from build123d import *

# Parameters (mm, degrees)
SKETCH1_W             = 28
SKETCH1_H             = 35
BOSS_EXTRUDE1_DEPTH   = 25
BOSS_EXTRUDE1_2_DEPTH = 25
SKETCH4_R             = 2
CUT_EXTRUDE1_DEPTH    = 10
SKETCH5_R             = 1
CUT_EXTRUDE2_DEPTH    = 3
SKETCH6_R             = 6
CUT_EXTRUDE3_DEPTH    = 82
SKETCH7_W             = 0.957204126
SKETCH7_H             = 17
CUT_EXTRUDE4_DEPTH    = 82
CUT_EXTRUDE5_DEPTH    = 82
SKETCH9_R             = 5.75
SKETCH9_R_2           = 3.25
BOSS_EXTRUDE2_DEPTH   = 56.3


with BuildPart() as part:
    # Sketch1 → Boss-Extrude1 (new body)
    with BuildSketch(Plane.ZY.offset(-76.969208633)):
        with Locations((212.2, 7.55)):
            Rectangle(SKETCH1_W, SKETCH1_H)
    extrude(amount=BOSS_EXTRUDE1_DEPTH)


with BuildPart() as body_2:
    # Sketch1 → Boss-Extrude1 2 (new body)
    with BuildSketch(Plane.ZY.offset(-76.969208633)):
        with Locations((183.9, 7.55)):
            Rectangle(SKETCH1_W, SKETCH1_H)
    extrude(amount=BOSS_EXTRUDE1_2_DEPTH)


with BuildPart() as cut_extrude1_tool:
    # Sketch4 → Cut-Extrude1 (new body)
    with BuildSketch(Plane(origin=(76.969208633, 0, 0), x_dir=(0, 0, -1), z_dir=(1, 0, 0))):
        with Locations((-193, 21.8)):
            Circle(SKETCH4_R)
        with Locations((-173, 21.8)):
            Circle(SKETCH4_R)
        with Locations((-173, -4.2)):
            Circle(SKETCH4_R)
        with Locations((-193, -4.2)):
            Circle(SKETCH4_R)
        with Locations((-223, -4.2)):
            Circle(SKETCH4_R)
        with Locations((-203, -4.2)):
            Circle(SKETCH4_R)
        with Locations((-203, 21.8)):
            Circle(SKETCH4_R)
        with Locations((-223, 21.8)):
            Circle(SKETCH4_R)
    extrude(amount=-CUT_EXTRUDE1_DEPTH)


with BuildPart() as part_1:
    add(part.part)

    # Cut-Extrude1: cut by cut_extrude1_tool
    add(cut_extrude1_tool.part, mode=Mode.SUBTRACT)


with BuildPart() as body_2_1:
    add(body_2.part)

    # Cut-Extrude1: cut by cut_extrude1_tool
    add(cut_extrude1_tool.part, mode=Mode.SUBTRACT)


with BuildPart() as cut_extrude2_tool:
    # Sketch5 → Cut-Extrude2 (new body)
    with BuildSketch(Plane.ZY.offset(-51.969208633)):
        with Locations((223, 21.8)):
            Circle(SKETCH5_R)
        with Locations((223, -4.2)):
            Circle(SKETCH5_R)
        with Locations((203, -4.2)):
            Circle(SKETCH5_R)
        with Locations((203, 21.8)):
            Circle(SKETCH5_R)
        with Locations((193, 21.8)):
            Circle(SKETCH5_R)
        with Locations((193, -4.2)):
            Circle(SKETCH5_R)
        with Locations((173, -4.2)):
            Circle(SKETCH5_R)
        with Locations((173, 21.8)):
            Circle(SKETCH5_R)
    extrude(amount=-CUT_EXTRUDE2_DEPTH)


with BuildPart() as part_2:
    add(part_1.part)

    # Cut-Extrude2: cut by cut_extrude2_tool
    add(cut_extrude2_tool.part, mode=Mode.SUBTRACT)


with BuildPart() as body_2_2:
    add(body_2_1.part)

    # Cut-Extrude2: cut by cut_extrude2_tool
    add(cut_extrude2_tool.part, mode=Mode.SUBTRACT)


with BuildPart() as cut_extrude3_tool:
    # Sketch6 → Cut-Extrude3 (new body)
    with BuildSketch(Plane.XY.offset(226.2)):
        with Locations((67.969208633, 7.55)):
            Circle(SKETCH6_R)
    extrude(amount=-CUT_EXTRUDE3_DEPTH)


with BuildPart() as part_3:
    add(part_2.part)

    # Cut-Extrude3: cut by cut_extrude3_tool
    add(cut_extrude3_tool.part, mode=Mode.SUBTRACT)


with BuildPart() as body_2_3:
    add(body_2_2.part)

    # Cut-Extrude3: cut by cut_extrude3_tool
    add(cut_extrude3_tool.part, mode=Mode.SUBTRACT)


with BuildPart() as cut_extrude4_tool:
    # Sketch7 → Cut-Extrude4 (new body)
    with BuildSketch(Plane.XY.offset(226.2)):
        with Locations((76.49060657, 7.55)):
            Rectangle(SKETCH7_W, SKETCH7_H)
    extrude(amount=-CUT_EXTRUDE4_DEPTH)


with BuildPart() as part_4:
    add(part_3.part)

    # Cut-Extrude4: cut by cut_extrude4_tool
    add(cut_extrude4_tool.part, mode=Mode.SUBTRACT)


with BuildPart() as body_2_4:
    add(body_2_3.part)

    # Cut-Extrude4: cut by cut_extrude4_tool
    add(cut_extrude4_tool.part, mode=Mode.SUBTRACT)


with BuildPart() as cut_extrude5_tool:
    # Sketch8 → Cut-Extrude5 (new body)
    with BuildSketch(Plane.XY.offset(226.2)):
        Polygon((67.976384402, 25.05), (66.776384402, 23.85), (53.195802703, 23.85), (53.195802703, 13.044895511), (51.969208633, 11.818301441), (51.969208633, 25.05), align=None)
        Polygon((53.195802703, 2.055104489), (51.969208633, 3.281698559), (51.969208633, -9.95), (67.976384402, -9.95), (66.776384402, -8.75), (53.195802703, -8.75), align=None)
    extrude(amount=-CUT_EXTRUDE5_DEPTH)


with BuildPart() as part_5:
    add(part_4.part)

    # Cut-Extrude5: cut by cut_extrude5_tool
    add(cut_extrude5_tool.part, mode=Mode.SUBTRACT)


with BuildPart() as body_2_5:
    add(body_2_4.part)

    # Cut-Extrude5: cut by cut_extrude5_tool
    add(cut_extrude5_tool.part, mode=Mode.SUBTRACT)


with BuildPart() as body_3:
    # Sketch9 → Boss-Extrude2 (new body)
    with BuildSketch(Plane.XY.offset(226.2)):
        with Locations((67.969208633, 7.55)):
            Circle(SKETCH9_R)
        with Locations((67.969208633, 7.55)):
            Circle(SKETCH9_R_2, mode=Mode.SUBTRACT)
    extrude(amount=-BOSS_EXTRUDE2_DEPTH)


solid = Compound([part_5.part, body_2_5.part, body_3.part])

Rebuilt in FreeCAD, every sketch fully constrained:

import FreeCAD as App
import Part
import Sketcher

V = App.Vector
Q = App.Units.Quantity

doc = App.newDocument("Part")
body = doc.addObject("PartDesign::Body", "Body")

# Sketch on YZ plane
sketch1 = body.newObject("Sketcher::SketchObject", "Sketch")
sketch1.AttachmentSupport = (doc.getObject("YZ_Plane"), [""])
sketch1.MapMode = "FlatFace"
sketch1.AttachmentOffset = App.Placement(V(0, 0, 76.969209), App.Rotation())
sketch1.addGeometry([
    Part.LineSegment(V(25, 198, 0), V(-10, 198, 0)),
    Part.LineSegment(V(-10, 198, 0), V(-10, 226, 0)),
    Part.LineSegment(V(-10, 226, 0), V(25, 226, 0)),
    Part.LineSegment(V(25, 226, 0), V(25, 198, 0)),
], False)
sketch1.addConstraint([
    Sketcher.Constraint("Coincident", 0, 2, 1, 1),
    Sketcher.Constraint("Coincident", 1, 2, 2, 1),
    Sketcher.Constraint("Coincident", 2, 2, 3, 1),
    Sketcher.Constraint("Coincident", 3, 2, 0, 1),
    Sketcher.Constraint("Horizontal", 0),
    Sketcher.Constraint("Vertical", 1),
    Sketcher.Constraint("Horizontal", 2),
    Sketcher.Constraint("Vertical", 3),
    Sketcher.Constraint("DistanceX", 0, 2, 0, 1, Q("35 mm")),
    Sketcher.Constraint("DistanceY", 1, 1, 1, 2, Q("28 mm")),
    Sketcher.Constraint("DistanceY", -1, 1, 0, 2, Q("198.2 mm")),
    Sketcher.Constraint("DistanceX", 0, 2, -1, 1, Q("9.95 mm")),
])
pad1 = body.newObject("PartDesign::Pad", "Pad")
pad1.Profile = sketch1
pad1.Length = 25
pad1.Reversed = True
body2 = doc.addObject("PartDesign::Body", "Body001")

# Sketch on YZ plane
sketch2 = body2.newObject("Sketcher::SketchObject", "Sketch001")
sketch2.AttachmentSupport = (doc.getObject("YZ_Plane001"), [""])
sketch2.MapMode = "FlatFace"
sketch2.AttachmentOffset = App.Placement(V(0, 0, 76.969209), App.Rotation())
sketch2.addGeometry([
    Part.LineSegment(V(25, 170, 0), V(-10, 170, 0)),
    Part.LineSegment(V(-10, 170, 0), V(-10, 198, 0)),
    Part.LineSegment(V(-10, 198, 0), V(25, 198, 0)),
    Part.LineSegment(V(25, 198, 0), V(25, 170, 0)),
], False)
sketch2.addConstraint([
    Sketcher.Constraint("Coincident", 0, 2, 1, 1),
    Sketcher.Constraint("Coincident", 1, 2, 2, 1),
    Sketcher.Constraint("Coincident", 2, 2, 3, 1),
    Sketcher.Constraint("Coincident", 3, 2, 0, 1),
    Sketcher.Constraint("Horizontal", 0),
    Sketcher.Constraint("Vertical", 1),
    Sketcher.Constraint("Horizontal", 2),
    Sketcher.Constraint("Vertical", 3),
    Sketcher.Constraint("DistanceX", 0, 2, 0, 1, Q("35 mm")),
    Sketcher.Constraint("DistanceY", 1, 1, 1, 2, Q("28 mm")),
    Sketcher.Constraint("DistanceY", -1, 1, 0, 2, Q("169.9 mm")),
    Sketcher.Constraint("DistanceX", 0, 2, -1, 1, Q("9.95 mm")),
])
pad2 = body2.newObject("PartDesign::Pad", "Pad001")
pad2.Profile = sketch2
pad2.Length = 25
pad2.Reversed = True
body3 = doc.addObject("PartDesign::Body", "Body002")
body3.AllowCompound = True

# Sketch on YZ plane
sketch3 = body3.newObject("Sketcher::SketchObject", "Sketch002")
sketch3.AttachmentSupport = (doc.getObject("YZ_Plane002"), [""])
sketch3.MapMode = "FlatFace"
sketch3.AttachmentOffset = App.Placement(V(0, 0, 76.969209), App.Rotation())
sketch3.addGeometry([
    Part.Circle(V(21.8, 193, 0), V(0, 0, 1), 2),  # 0
    Part.Circle(V(21.8, 173, 0), V(0, 0, 1), 2),  # 1
    Part.Circle(V(-4.2, 173, 0), V(0, 0, 1), 2),  # 2
    Part.Circle(V(-4.2, 193, 0), V(0, 0, 1), 2),  # 3
    Part.Circle(V(-4.2, 223, 0), V(0, 0, 1), 2),  # 4
    Part.Circle(V(-4.2, 203, 0), V(0, 0, 1), 2),  # 5
    Part.Circle(V(21.8, 203, 0), V(0, 0, 1), 2),  # 6
    Part.Circle(V(21.8, 223, 0), V(0, 0, 1), 2),  # 7
], False)
sketch3.addConstraint([
    Sketcher.Constraint("Equal", 0, 1),
    Sketcher.Constraint("Equal", 1, 2),
    Sketcher.Constraint("Equal", 2, 3),
    Sketcher.Constraint("Equal", 3, 4),
    Sketcher.Constraint("Equal", 4, 5),
    Sketcher.Constraint("Equal", 5, 6),
    Sketcher.Constraint("Equal", 6, 7),
    Sketcher.Constraint("Horizontal", 1, 3, 2, 3),
    Sketcher.Constraint("Horizontal", 0, 3, 3, 3),
    Sketcher.Constraint("Horizontal", 5, 3, 6, 3),
    Sketcher.Constraint("Horizontal", 4, 3, 7, 3),
    Sketcher.Constraint("Vertical", 0, 3, 1, 3),
    Sketcher.Constraint("Vertical", 2, 3, 3, 3),
    Sketcher.Constraint("Vertical", 3, 3, 4, 3),
    Sketcher.Constraint("Vertical", 4, 3, 5, 3),
    Sketcher.Constraint("Vertical", 1, 3, 6, 3),
    Sketcher.Constraint("Vertical", 6, 3, 7, 3),
    Sketcher.Constraint("Diameter", 0, Q("4 mm")),
    Sketcher.Constraint("DistanceY", -1, 1, 0, 3, Q("193 mm")),
    Sketcher.Constraint("DistanceY", -1, 1, 1, 3, Q("173 mm")),
    Sketcher.Constraint("DistanceY", -1, 1, 4, 3, Q("223 mm")),
    Sketcher.Constraint("DistanceY", -1, 1, 5, 3, Q("203 mm")),
    Sketcher.Constraint("DistanceX", 2, 3, 1, 3, Q("26 mm")),
    Sketcher.Constraint("DistanceX", -1, 1, 0, 3, Q("21.8 mm")),
])
pad3 = body3.newObject("PartDesign::Pad", "Pad002")
pad3.Profile = sketch3
pad3.Length = 10
pad3.Reversed = True
doc.recompute()

body4 = doc.addObject("PartDesign::Body", "Body003")
body4.BaseFeature = body3
boolean = body.newObject("PartDesign::Boolean", "Boolean")
boolean.Type = "Cut"
boolean.addObjects([body4])
doc.recompute()

boolean2 = body2.newObject("PartDesign::Boolean", "Boolean001")
boolean2.Type = "Cut"
boolean2.addObjects([body3])
body5 = doc.addObject("PartDesign::Body", "Body004")
body5.AllowCompound = True

# Sketch on YZ plane
sketch4 = body5.newObject("Sketcher::SketchObject", "Sketch003")
sketch4.AttachmentSupport = (doc.getObject("YZ_Plane004"), [""])
sketch4.MapMode = "FlatFace"
sketch4.AttachmentOffset = App.Placement(V(0, 0, 51.969209), App.Rotation())
sketch4.addGeometry([
    Part.Circle(V(21.8, 223, 0), V(0, 0, 1), 1),  # 0
    Part.Circle(V(-4.2, 223, 0), V(0, 0, 1), 1),  # 1
    Part.Circle(V(-4.2, 203, 0), V(0, 0, 1), 1),  # 2
    Part.Circle(V(21.8, 203, 0), V(0, 0, 1), 1),  # 3
    Part.Circle(V(21.8, 193, 0), V(0, 0, 1), 1),  # 4
    Part.Circle(V(-4.2, 193, 0), V(0, 0, 1), 1),  # 5
    Part.Circle(V(-4.2, 173, 0), V(0, 0, 1), 1),  # 6
    Part.Circle(V(21.8, 173, 0), V(0, 0, 1), 1),  # 7
], False)
sketch4.addConstraint([
    Sketcher.Constraint("Equal", 0, 1),
    Sketcher.Constraint("Equal", 1, 2),
    Sketcher.Constraint("Equal", 2, 3),
    Sketcher.Constraint("Equal", 3, 4),
    Sketcher.Constraint("Equal", 4, 5),
    Sketcher.Constraint("Equal", 5, 6),
    Sketcher.Constraint("Equal", 6, 7),
    Sketcher.Constraint("Horizontal", 0, 3, 1, 3),
    Sketcher.Constraint("Horizontal", 2, 3, 3, 3),
    Sketcher.Constraint("Horizontal", 4, 3, 5, 3),
    Sketcher.Constraint("Horizontal", 6, 3, 7, 3),
    Sketcher.Constraint("Vertical", 1, 3, 2, 3),
    Sketcher.Constraint("Vertical", 0, 3, 3, 3),
    Sketcher.Constraint("Vertical", 3, 3, 4, 3),
    Sketcher.Constraint("Vertical", 2, 3, 5, 3),
    Sketcher.Constraint("Vertical", 5, 3, 6, 3),
    Sketcher.Constraint("Vertical", 4, 3, 7, 3),
    Sketcher.Constraint("Diameter", 0, Q("2 mm")),
    Sketcher.Constraint("DistanceY", -1, 1, 0, 3, Q("223 mm")),
    Sketcher.Constraint("DistanceY", -1, 1, 2, 3, Q("203 mm")),
    Sketcher.Constraint("DistanceY", -1, 1, 4, 3, Q("193 mm")),
    Sketcher.Constraint("DistanceY", -1, 1, 6, 3, Q("173 mm")),
    Sketcher.Constraint("DistanceX", 1, 3, 0, 3, Q("26 mm")),
    Sketcher.Constraint("DistanceX", -1, 1, 0, 3, Q("21.8 mm")),
])
pad4 = body5.newObject("PartDesign::Pad", "Pad003")
pad4.Profile = sketch4
pad4.Length = 3
doc.recompute()

body6 = doc.addObject("PartDesign::Body", "Body005")
body6.BaseFeature = body5
boolean3 = body.newObject("PartDesign::Boolean", "Boolean002")
boolean3.Type = "Cut"
boolean3.addObjects([body6])
doc.recompute()

boolean4 = body2.newObject("PartDesign::Boolean", "Boolean003")
boolean4.Type = "Cut"
boolean4.addObjects([body5])
body7 = doc.addObject("PartDesign::Body", "Body006")

# Sketch on XY plane
sketch5 = body7.newObject("Sketcher::SketchObject", "Sketch004")
sketch5.AttachmentSupport = (doc.getObject("XY_Plane006"), [""])
sketch5.MapMode = "FlatFace"
sketch5.AttachmentOffset = App.Placement(V(0, 0, 226.2), App.Rotation())
sketch5.addGeometry(Part.Circle(V(68, 8, 0), V(0, 0, 1), 6), False)
sketch5.addConstraint([
    Sketcher.Constraint("Diameter", 0, Q("12 mm")),
    Sketcher.Constraint("DistanceY", -1, 1, 0, 3, Q("7.55 mm")),
    Sketcher.Constraint("DistanceX", -1, 1, 0, 3, Q("67.969209 mm")),
])
pad5 = body7.newObject("PartDesign::Pad", "Pad004")
pad5.Profile = sketch5
pad5.Length = 82
pad5.Reversed = True
doc.recompute()

body8 = doc.addObject("PartDesign::Body", "Body007")
body8.BaseFeature = body7
boolean5 = body.newObject("PartDesign::Boolean", "Boolean004")
boolean5.Type = "Cut"
boolean5.addObjects([body8])
doc.recompute()

boolean6 = body2.newObject("PartDesign::Boolean", "Boolean005")
boolean6.Type = "Cut"
boolean6.addObjects([body7])
body9 = doc.addObject("PartDesign::Body", "Body008")

# Sketch on XY plane
sketch6 = body9.newObject("Sketcher::SketchObject", "Sketch005")
sketch6.AttachmentSupport = (doc.getObject("XY_Plane008"), [""])
sketch6.MapMode = "FlatFace"
sketch6.AttachmentOffset = App.Placement(V(0, 0, 226.2), App.Rotation())
sketch6.addGeometry([
    Part.LineSegment(V(76, 16.1, 0), V(76, -0.9, 0)),
    Part.LineSegment(V(76, -0.9, 0), V(77, -0.9, 0)),
    Part.LineSegment(V(77, -0.9, 0), V(77, 16.1, 0)),
    Part.LineSegment(V(77, 16.1, 0), V(76, 16.1, 0)),
], False)
sketch6.addConstraint([
    Sketcher.Constraint("Coincident", 0, 2, 1, 1),
    Sketcher.Constraint("Coincident", 1, 2, 2, 1),
    Sketcher.Constraint("Coincident", 2, 2, 3, 1),
    Sketcher.Constraint("Coincident", 3, 2, 0, 1),
    Sketcher.Constraint("Vertical", 0),
    Sketcher.Constraint("Horizontal", 1),
    Sketcher.Constraint("Vertical", 2),
    Sketcher.Constraint("Horizontal", 3),
    Sketcher.Constraint("DistanceY", 0, 2, 0, 1, Q("17 mm")),
    Sketcher.Constraint("DistanceY", 0, 2, -1, 1, Q("0.95 mm")),
    Sketcher.Constraint("DistanceX", 1, 1, 1, 2, Q("0.957204 mm")),
    Sketcher.Constraint("DistanceX", -1, 1, 1, 2, Q("76.969209 mm")),
])
pad6 = body9.newObject("PartDesign::Pad", "Pad005")
pad6.Profile = sketch6
pad6.Length = 82
pad6.Reversed = True
doc.recompute()

body10 = doc.addObject("PartDesign::Body", "Body009")
body10.BaseFeature = body9
boolean7 = body.newObject("PartDesign::Boolean", "Boolean006")
boolean7.Type = "Cut"
boolean7.addObjects([body10])
doc.recompute()

boolean8 = body2.newObject("PartDesign::Boolean", "Boolean007")
boolean8.Type = "Cut"
boolean8.addObjects([body9])
body11 = doc.addObject("PartDesign::Body", "Body010")
body11.AllowCompound = True

# Sketch on XY plane
sketch7 = body11.newObject("Sketcher::SketchObject", "Sketch006")
sketch7.AttachmentSupport = (doc.getObject("XY_Plane010"), [""])
sketch7.MapMode = "FlatFace"
sketch7.AttachmentOffset = App.Placement(V(0, 0, 226.2), App.Rotation())
sketch7.addGeometry([
    Part.LineSegment(V(66.8, 23.9, 0), V(68, 25.1, 0)),  # 0
    Part.LineSegment(V(68, 25.1, 0), V(52, 25.1, 0)),  # 1
    Part.LineSegment(V(52, 25.1, 0), V(52, 11.8, 0)),  # 2
    Part.LineSegment(V(52, 11.8, 0), V(53.2, 13, 0)),  # 3
    Part.LineSegment(V(53.2, 13, 0), V(53.2, 23.9, 0)),  # 4
    Part.LineSegment(V(53.2, 23.9, 0), V(66.8, 23.9, 0)),  # 5
    Part.LineSegment(V(53.2, 2.1, 0), V(52, 3.3, 0)),  # 6
    Part.LineSegment(V(52, 3.3, 0), V(52, -9.9, 0)),  # 7
    Part.LineSegment(V(52, -9.9, 0), V(68, -9.9, 0)),  # 8
    Part.LineSegment(V(68, -9.9, 0), V(66.8, -8.8, 0)),  # 9
    Part.LineSegment(V(66.8, -8.8, 0), V(53.2, -8.8, 0)),  # 10
    Part.LineSegment(V(53.2, -8.8, 0), V(53.2, 2.1, 0)),  # 11
], False)
sketch7.addConstraint([
    Sketcher.Constraint("Coincident", 0, 2, 1, 1),
    Sketcher.Constraint("Coincident", 1, 2, 2, 1),
    Sketcher.Constraint("Coincident", 2, 2, 3, 1),
    Sketcher.Constraint("Coincident", 3, 2, 4, 1),
    Sketcher.Constraint("Coincident", 4, 2, 5, 1),
    Sketcher.Constraint("Coincident", 5, 2, 0, 1),
    Sketcher.Constraint("Coincident", 6, 2, 7, 1),
    Sketcher.Constraint("Coincident", 7, 2, 8, 1),
    Sketcher.Constraint("Coincident", 8, 2, 9, 1),
    Sketcher.Constraint("Coincident", 9, 2, 10, 1),
    Sketcher.Constraint("Coincident", 10, 2, 11, 1),
    Sketcher.Constraint("Coincident", 11, 2, 6, 1),
    Sketcher.Constraint("Horizontal", 1),
    Sketcher.Constraint("Vertical", 2),
    Sketcher.Constraint("Vertical", 4),
    Sketcher.Constraint("Horizontal", 5),
    Sketcher.Constraint("Vertical", 7),
    Sketcher.Constraint("Horizontal", 8),
    Sketcher.Constraint("Horizontal", 10),
    Sketcher.Constraint("Vertical", 11),
    Sketcher.Constraint("Parallel", 0, 3),
    Sketcher.Constraint("Perpendicular", 3, 6),
    Sketcher.Constraint("Parallel", 6, 9),
    Sketcher.Constraint("Vertical", 2, 2, 6, 2),
    Sketcher.Constraint("Vertical", 0, 2, 8, 2),
    Sketcher.Constraint("Vertical", 5, 2, 9, 2),
    Sketcher.Constraint("Vertical", 4, 2, 10, 2),
    Sketcher.Constraint("Equal", 2, 7),
    Sketcher.Constraint("Equal", 4, 11),
    Sketcher.Constraint("DistanceY", 7, 2, 1, 2, Q("35 mm")),
    Sketcher.Constraint("DistanceY", 4, 2, 1, 2, Q("1.2 mm")),
    Sketcher.Constraint("DistanceY", -1, 1, 0, 2, Q("25.05 mm")),
    Sketcher.Constraint("DistanceY", 2, 2, 2, 1, Q("13.231699 mm")),
    Sketcher.Constraint("DistanceX", 5, 1, 5, 2, Q("13.580582 mm")),
    Sketcher.Constraint("DistanceX", 1, 2, 1, 1, Q("16.007176 mm")),
    Sketcher.Constraint("DistanceX", -1, 1, 1, 2, Q("51.969209 mm")),
])
pad7 = body11.newObject("PartDesign::Pad", "Pad006")
pad7.Profile = sketch7
pad7.Length = 82
pad7.Reversed = True
doc.recompute()

body12 = doc.addObject("PartDesign::Body", "Body011")
body12.BaseFeature = body11
boolean9 = body.newObject("PartDesign::Boolean", "Boolean008")
boolean9.Type = "Cut"
boolean9.addObjects([body12])
doc.recompute()

boolean10 = body2.newObject("PartDesign::Boolean", "Boolean009")
boolean10.Type = "Cut"
boolean10.addObjects([body11])
body13 = doc.addObject("PartDesign::Body", "Body012")

# Sketch on XY plane
sketch8 = body13.newObject("Sketcher::SketchObject", "Sketch007")
sketch8.AttachmentSupport = (doc.getObject("XY_Plane012"), [""])
sketch8.MapMode = "FlatFace"
sketch8.AttachmentOffset = App.Placement(V(0, 0, 226.2), App.Rotation())
sketch8.addGeometry([
    Part.Circle(V(68, 7.5, 0), V(0, 0, 1), 5.8),
    Part.Circle(V(68, 7.5, 0), V(0, 0, 1), 3.2),
], False)
sketch8.addConstraint([
    Sketcher.Constraint("Coincident", 1, 3, 0, 3),
    Sketcher.Constraint("Diameter", 0, Q("11.5 mm")),
    Sketcher.Constraint("Diameter", 1, Q("6.5 mm")),
    Sketcher.Constraint("DistanceY", -1, 1, 0, 3, Q("7.55 mm")),
    Sketcher.Constraint("DistanceX", -1, 1, 0, 3, Q("67.969209 mm")),
])
pad8 = body13.newObject("PartDesign::Pad", "Pad007")
pad8.Profile = sketch8
pad8.Length = 56.3
pad8.Reversed = True

doc.recompute()
